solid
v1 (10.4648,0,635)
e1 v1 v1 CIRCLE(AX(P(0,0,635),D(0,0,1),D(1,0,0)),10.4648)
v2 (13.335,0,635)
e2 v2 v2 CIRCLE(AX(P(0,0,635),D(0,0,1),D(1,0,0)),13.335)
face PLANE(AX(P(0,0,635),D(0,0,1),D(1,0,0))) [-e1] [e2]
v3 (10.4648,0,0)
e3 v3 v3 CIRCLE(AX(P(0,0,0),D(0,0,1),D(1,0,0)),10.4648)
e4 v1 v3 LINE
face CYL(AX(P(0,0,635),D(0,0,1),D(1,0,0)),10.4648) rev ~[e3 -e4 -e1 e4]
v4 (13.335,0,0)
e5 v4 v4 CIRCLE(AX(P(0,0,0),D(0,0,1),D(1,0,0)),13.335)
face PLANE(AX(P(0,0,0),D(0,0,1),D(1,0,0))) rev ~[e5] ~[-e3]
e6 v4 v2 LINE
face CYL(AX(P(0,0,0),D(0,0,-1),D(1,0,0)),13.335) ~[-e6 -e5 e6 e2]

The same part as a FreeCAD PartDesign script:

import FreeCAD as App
import Part
import Sketcher

V = App.Vector
Q = App.Units.Quantity

doc = App.newDocument("Part")
body = doc.addObject("PartDesign::Body", "Body")

# Sketch on XY plane
sketch1 = body.newObject("Sketcher::SketchObject", "Sketch")
sketch1.AttachmentSupport = (doc.getObject("XY_Plane"), [""])
sketch1.MapMode = "FlatFace"
sketch1.addGeometry(Part.Circle(V(0, 0, 0), V(0, 0, 1), 13), False)
sketch1.addConstraint([
    Sketcher.Constraint("Coincident", 0, 3, -1, 1),
    Sketcher.Constraint("Diameter", 0, Q("1.05 in")),
])
pad1 = body.newObject("PartDesign::Pad", "Pad")
pad1.Profile = sketch1
pad1.Length = Q("25 in")

# Sketch on XY plane
sketch2 = body.newObject("Sketcher::SketchObject", "Sketch001")
sketch2.AttachmentSupport = (doc.getObject("XY_Plane"), [""])
sketch2.MapMode = "FlatFace"
sketch2.AttachmentOffset = App.Placement(V(0, 0, 25 * 25.4), App.Rotation())
sketch2.addGeometry(Part.Circle(V(0, 0, 0), V(0, 0, 1), 10), False)
sketch2.addConstraint([
    Sketcher.Constraint("Coincident", 0, 3, -1, 1),
    Sketcher.Constraint("Diameter", 0, Q("0.824 in")),
])
pocket1 = body.newObject("PartDesign::Pocket", "Pocket")
pocket1.Profile = sketch2
pocket1.Length = Q("30 in")

doc.recompute()
